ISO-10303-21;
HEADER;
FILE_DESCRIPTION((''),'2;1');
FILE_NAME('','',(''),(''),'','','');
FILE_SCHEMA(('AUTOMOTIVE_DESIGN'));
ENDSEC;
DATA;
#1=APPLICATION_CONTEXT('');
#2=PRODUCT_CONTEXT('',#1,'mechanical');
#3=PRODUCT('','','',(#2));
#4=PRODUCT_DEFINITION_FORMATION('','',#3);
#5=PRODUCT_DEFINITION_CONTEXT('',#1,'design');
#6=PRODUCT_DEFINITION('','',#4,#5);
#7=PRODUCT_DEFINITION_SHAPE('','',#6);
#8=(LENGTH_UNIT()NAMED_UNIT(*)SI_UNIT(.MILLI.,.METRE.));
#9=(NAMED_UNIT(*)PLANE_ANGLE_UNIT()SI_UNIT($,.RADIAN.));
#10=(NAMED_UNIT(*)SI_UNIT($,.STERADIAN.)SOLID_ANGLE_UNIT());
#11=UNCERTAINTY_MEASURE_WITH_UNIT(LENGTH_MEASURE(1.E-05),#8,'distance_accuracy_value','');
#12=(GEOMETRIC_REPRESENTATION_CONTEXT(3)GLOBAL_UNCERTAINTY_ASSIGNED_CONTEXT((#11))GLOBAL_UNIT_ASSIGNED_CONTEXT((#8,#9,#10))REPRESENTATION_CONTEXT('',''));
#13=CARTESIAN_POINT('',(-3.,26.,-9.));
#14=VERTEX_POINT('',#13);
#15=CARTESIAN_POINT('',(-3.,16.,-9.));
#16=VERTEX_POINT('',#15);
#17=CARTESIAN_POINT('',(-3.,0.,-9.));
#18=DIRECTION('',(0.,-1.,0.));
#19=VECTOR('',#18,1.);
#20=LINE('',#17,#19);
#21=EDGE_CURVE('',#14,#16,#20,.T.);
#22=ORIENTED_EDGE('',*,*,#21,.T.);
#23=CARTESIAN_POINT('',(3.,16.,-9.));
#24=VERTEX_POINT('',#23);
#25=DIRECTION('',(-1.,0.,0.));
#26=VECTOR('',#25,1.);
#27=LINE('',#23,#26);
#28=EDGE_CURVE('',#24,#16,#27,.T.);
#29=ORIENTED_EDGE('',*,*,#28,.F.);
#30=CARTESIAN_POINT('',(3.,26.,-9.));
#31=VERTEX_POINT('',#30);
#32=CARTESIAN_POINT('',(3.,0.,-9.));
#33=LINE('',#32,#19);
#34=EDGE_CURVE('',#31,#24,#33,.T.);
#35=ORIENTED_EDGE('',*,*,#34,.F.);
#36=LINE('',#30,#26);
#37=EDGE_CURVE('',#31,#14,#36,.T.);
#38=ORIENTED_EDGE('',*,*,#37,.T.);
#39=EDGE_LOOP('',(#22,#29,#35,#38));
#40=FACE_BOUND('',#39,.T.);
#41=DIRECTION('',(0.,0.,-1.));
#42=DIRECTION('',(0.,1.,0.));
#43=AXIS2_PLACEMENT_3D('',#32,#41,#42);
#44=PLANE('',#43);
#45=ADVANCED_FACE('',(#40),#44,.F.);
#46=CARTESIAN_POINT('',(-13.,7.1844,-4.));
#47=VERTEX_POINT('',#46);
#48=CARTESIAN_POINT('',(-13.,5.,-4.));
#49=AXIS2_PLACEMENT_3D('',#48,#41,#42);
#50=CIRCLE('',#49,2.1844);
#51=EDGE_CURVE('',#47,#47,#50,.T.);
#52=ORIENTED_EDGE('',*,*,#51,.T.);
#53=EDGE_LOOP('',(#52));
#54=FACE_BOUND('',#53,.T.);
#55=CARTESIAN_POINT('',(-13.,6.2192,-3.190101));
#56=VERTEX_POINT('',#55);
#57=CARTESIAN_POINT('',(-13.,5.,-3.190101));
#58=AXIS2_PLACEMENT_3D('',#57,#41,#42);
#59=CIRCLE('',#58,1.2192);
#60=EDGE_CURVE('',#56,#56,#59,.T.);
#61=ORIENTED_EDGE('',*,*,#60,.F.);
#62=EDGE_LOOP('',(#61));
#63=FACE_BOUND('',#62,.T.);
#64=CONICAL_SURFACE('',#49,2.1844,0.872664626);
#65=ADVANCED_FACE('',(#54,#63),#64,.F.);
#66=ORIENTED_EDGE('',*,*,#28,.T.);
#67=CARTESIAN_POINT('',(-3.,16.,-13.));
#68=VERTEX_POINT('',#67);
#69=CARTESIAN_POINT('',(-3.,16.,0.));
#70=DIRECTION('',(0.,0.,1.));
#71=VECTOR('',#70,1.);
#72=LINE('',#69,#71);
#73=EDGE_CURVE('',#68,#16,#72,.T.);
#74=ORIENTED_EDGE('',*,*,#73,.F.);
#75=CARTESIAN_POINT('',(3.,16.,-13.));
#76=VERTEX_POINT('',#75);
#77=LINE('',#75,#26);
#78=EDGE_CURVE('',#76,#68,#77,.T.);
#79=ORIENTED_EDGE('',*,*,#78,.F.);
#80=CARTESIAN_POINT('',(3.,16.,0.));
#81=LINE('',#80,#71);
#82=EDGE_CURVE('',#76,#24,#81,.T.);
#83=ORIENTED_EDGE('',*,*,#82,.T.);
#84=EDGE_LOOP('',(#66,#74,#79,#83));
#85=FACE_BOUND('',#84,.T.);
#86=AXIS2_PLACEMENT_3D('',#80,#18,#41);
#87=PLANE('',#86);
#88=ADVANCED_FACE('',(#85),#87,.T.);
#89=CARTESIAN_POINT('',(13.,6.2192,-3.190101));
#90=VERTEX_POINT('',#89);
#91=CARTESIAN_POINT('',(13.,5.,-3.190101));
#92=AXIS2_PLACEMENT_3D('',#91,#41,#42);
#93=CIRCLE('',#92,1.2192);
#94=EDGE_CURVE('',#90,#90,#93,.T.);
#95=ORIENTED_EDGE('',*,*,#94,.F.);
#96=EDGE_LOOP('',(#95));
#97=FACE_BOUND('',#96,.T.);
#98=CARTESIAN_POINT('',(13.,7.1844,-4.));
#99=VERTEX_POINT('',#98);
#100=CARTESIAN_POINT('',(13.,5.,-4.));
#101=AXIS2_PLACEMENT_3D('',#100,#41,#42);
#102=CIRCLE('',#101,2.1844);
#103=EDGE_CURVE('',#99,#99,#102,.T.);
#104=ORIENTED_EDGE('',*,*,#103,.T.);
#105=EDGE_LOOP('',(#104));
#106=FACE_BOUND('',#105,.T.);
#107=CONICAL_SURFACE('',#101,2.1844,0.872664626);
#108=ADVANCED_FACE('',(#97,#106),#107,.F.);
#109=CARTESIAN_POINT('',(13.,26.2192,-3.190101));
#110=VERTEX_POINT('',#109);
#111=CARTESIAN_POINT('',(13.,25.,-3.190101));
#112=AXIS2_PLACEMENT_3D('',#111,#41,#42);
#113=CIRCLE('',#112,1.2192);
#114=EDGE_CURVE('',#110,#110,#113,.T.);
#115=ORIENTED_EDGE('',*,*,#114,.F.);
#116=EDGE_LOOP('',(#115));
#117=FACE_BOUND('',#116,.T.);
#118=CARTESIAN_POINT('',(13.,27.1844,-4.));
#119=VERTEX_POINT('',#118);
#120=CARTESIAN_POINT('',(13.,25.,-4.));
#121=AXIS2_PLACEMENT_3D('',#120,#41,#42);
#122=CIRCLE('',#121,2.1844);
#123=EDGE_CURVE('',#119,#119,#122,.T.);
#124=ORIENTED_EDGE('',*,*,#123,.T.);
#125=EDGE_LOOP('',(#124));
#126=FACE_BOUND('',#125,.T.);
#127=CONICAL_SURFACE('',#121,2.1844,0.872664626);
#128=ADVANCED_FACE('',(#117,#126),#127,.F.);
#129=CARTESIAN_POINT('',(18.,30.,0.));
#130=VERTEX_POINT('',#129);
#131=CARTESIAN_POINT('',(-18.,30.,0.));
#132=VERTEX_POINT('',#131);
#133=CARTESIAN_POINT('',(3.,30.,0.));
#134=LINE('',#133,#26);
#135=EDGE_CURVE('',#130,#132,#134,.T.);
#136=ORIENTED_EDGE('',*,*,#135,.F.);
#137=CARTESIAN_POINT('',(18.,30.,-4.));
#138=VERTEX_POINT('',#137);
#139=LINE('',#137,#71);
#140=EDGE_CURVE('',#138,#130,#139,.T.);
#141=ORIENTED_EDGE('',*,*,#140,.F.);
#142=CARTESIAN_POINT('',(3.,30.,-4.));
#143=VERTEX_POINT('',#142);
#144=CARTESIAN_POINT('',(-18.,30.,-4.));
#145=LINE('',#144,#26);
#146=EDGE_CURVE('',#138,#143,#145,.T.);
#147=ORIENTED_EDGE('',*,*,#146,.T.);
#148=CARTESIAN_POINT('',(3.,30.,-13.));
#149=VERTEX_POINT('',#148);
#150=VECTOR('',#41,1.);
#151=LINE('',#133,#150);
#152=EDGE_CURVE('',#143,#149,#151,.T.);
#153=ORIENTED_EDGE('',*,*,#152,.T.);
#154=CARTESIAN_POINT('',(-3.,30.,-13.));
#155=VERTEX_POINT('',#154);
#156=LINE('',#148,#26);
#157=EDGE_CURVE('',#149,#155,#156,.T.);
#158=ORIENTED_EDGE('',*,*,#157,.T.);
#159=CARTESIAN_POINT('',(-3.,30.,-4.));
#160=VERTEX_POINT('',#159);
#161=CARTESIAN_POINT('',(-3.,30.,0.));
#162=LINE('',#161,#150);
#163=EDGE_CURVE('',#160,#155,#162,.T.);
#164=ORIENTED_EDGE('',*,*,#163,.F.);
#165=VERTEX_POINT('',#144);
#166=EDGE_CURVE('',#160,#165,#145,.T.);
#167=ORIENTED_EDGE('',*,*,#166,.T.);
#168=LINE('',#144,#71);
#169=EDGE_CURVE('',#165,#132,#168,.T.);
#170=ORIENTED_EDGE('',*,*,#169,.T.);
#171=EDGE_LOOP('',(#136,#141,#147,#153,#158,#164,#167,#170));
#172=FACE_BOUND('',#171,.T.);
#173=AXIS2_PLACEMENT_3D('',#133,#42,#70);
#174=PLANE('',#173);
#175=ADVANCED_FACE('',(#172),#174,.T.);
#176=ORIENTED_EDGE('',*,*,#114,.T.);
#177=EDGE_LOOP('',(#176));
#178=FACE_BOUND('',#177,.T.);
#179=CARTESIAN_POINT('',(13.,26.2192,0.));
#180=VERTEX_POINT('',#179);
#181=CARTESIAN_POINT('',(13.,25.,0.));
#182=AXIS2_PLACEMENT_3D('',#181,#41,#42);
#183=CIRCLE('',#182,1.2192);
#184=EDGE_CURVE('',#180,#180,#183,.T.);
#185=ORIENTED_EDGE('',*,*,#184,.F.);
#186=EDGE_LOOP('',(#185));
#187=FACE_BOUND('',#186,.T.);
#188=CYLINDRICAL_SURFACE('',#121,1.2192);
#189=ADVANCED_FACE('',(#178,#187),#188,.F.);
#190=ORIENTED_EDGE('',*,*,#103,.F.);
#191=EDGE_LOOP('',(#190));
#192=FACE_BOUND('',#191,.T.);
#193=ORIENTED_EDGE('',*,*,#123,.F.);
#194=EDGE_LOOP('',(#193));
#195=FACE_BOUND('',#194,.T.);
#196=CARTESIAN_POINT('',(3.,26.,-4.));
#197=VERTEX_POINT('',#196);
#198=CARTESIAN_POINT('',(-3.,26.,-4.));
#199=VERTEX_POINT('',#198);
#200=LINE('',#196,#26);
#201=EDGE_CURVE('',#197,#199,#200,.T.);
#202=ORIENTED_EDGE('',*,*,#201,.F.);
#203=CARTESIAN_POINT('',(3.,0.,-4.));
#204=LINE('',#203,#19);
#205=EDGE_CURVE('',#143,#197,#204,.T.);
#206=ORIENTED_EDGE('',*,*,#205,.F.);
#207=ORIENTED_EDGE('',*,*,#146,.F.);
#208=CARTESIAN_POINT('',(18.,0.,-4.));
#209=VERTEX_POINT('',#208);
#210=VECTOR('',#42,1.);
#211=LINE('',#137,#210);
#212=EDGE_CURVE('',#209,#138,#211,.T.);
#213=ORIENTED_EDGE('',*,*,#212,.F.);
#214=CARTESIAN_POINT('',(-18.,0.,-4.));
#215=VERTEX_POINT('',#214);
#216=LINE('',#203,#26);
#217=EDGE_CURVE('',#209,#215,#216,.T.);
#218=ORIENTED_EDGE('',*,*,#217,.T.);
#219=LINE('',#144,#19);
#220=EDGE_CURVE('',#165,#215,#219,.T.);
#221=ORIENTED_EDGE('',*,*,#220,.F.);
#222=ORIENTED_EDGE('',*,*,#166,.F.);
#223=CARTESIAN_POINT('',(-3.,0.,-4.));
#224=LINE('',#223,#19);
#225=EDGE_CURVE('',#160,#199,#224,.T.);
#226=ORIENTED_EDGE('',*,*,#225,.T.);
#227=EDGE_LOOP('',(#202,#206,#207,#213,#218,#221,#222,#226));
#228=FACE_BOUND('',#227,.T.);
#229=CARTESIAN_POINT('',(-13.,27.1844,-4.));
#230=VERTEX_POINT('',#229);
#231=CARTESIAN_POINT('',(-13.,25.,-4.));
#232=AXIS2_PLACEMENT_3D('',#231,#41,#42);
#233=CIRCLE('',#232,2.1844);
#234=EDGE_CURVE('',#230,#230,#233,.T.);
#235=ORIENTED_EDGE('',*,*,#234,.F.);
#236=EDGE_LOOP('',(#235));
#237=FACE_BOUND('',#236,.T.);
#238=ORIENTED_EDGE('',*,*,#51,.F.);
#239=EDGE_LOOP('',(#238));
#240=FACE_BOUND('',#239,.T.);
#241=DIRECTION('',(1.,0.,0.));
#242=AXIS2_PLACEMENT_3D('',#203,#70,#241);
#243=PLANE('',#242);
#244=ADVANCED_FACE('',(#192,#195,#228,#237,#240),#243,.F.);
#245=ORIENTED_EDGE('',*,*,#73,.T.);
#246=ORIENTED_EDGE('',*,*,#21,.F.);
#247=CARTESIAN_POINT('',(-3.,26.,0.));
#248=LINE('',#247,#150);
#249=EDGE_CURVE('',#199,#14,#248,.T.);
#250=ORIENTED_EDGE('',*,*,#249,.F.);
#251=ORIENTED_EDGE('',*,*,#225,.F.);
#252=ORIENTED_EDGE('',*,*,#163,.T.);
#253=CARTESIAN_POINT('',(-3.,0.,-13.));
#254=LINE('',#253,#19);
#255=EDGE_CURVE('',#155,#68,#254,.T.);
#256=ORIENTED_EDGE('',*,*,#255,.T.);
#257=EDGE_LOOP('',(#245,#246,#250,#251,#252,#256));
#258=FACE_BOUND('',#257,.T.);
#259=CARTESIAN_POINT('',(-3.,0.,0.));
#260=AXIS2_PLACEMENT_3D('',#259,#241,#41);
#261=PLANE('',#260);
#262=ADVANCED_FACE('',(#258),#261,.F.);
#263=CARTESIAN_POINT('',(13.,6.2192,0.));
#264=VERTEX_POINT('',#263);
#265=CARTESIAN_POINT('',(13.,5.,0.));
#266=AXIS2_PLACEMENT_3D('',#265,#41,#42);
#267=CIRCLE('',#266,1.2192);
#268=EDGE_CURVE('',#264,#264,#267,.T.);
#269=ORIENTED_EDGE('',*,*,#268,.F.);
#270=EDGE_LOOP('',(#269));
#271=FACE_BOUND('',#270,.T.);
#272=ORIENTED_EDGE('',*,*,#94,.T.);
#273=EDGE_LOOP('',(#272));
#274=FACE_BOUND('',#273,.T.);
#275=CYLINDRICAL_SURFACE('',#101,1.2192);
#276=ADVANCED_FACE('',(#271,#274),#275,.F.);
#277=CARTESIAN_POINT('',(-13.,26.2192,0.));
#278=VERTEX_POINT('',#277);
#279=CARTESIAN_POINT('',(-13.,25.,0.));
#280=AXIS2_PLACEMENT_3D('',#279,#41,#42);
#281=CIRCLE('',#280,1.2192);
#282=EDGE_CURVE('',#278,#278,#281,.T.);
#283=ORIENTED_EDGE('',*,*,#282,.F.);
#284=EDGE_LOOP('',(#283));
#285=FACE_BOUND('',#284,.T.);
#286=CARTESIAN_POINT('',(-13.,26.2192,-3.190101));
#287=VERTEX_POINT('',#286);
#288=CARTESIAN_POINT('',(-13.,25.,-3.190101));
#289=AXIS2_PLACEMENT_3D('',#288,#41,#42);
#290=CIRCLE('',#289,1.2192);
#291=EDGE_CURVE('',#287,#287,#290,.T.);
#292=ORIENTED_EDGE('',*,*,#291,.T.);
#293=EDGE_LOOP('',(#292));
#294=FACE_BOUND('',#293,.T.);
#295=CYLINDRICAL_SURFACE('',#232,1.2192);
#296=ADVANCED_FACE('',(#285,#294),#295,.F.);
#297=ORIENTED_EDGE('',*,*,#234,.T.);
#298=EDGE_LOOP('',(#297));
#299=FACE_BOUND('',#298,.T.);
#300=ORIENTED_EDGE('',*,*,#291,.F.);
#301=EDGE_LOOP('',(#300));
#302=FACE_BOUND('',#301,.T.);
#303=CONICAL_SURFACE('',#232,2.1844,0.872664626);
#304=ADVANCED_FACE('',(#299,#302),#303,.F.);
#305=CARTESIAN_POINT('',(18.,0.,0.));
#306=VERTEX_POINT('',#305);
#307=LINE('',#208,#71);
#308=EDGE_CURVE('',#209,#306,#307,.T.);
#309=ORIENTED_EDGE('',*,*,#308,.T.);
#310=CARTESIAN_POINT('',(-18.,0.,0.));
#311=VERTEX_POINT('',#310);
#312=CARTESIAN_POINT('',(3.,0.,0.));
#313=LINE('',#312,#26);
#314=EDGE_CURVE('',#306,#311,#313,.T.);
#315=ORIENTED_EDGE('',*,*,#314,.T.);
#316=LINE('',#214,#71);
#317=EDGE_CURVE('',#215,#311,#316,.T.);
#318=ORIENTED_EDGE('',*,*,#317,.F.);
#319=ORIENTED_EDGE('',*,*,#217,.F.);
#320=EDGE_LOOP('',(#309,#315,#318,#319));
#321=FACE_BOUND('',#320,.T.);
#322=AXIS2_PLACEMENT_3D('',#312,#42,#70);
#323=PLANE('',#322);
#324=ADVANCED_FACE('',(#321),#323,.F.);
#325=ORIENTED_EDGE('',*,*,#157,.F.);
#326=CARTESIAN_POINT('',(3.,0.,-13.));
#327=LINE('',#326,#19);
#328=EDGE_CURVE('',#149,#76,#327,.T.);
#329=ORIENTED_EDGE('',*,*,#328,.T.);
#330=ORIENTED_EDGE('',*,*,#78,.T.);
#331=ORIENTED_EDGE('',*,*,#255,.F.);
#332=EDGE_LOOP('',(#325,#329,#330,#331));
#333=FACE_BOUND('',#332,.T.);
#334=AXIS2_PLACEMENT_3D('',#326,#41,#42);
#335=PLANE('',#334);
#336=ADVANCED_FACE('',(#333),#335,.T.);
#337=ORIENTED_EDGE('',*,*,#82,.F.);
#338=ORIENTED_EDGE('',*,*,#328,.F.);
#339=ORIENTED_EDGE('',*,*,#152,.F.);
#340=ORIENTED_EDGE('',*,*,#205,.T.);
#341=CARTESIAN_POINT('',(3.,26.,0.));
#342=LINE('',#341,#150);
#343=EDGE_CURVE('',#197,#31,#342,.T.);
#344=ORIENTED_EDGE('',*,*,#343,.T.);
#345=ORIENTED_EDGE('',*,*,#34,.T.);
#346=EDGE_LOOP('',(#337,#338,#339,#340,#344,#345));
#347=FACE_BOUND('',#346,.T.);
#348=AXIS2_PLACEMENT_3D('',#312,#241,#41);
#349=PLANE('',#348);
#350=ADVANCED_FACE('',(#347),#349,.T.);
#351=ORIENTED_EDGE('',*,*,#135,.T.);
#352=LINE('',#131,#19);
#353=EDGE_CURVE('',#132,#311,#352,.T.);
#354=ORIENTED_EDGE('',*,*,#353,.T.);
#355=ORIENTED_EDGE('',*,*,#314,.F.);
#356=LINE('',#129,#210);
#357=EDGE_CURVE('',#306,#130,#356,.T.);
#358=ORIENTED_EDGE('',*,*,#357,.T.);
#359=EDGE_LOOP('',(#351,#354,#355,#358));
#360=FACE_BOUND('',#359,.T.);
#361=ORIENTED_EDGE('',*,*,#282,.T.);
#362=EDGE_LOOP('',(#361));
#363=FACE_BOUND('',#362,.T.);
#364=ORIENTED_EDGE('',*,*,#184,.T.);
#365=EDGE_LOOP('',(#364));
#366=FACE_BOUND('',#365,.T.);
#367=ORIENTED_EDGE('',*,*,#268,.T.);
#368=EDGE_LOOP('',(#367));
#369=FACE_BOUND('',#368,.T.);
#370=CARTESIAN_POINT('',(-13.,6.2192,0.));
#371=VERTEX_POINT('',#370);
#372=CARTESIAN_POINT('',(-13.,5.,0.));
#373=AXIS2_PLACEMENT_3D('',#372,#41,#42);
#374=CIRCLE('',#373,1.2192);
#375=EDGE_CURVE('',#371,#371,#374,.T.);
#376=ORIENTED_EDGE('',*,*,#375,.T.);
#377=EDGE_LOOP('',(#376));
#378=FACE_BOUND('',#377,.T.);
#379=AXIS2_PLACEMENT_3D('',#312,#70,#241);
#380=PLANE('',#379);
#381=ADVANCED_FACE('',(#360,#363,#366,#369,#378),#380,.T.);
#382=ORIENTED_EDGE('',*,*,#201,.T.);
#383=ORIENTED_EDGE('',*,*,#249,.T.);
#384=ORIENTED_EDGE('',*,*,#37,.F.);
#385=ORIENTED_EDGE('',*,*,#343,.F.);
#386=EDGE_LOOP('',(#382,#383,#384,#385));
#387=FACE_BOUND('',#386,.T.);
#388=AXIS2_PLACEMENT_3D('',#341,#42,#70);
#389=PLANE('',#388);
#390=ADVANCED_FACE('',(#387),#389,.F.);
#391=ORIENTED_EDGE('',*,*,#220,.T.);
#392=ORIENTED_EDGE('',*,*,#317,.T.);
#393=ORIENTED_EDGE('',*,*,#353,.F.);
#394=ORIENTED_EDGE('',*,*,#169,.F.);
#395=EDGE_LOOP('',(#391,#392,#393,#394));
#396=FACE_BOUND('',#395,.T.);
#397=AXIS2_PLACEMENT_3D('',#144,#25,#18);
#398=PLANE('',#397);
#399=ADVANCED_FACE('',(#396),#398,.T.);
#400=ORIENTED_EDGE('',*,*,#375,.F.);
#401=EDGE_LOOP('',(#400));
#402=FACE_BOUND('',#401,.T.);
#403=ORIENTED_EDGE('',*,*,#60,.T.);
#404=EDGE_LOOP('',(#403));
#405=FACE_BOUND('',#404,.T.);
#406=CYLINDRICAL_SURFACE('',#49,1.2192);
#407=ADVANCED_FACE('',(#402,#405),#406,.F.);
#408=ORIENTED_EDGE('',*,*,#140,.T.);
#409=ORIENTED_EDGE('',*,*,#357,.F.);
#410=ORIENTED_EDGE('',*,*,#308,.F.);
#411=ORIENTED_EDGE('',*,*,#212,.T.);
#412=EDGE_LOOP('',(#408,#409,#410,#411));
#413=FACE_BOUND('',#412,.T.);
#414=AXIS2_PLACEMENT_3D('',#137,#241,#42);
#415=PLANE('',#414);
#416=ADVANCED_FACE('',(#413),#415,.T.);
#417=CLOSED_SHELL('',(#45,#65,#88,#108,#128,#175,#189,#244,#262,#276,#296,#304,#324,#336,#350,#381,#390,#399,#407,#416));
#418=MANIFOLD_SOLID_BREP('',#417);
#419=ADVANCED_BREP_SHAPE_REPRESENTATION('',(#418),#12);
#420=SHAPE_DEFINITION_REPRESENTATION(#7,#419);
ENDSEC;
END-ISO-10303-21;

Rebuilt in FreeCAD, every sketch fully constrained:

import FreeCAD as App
import Part
import Sketcher

V = App.Vector


def add_polygon(sketch, points):
    """Adds a closed chain of lines whose ends are joined by coincident constraints."""
    first, n = sketch.GeometryCount, len(points)
    for a, b in zip(points, points[1:] + points[:1]):
        sketch.addGeometry(Part.LineSegment(App.Vector(*a, 0), App.Vector(*b, 0)), False)
    for i in range(n):
        sketch.addConstraint(Sketcher.Constraint("Coincident", first + i, 2, first + (i + 1) % n, 1))

doc = App.newDocument("Part")
params = doc.addObject("Spreadsheet::Sheet", "Params")
for row, (alias, value) in enumerate([
    ("sketch1_width", "10 mm"),
    ("sketch1_width2", "14 mm"),
    ("sketch1_width3", "30 mm"),
    ("sketch1_height", "5 mm"),
    ("sketch1_height2", "4 mm"),
    ("pad1_length", "6 mm"),
    ("sketch2_width", "36 mm"),
    ("sketch2_height", "30 mm"),
    ("pad2_length", "4 mm"),
    ("hole_diameter", "2.4384 mm"),
    ("hole_csink_diameter", "4.3688 mm"),
], start=1):
    params.set(f"A{row}", alias)
    params.set(f"B{row}", "=" + value)
    params.setAlias(f"B{row}", alias)

body = doc.addObject("PartDesign::Body", "Body")

sketch1 = body.newObject("Sketcher::SketchObject", "Sketch")
sketch1.AttachmentSupport = (doc.getObject("YZ_Plane"), [""])
sketch1.MapMode = "FlatFace"
add_polygon(sketch1, [(26, -4), (26, -9), (16, -9), (16, -13), (30, -13), (30, 0), (0, 0), (0, -4)])
sketch1.addConstraint([
    Sketcher.Constraint("Vertical", 0),
    Sketcher.Constraint("Horizontal", 1),
    Sketcher.Constraint("Vertical", 2),
    Sketcher.Constraint("Horizontal", 3),
    Sketcher.Constraint("Vertical", 4),
    Sketcher.Constraint("Horizontal", 5),
    Sketcher.Constraint("Vertical", 6),
    Sketcher.Constraint("Horizontal", 7),
    Sketcher.Constraint("Coincident", 5, 2, -1, 1),
    Sketcher.Constraint("Equal", 2, 6),
    Sketcher.Constraint("DistanceX", 1, 2, 1, 1, 10.0),
    Sketcher.Constraint("DistanceX", 3, 1, 3, 2, 14.0),
    Sketcher.Constraint("DistanceX", 5, 2, 5, 1, 30.0),
    Sketcher.Constraint("DistanceY", 0, 2, 0, 1, 5.0),
    Sketcher.Constraint("DistanceY", 2, 2, 2, 1, 4.0),
])
sketch1.setExpression("Constraints[18]", "Params.sketch1_width")
sketch1.setExpression("Constraints[19]", "Params.sketch1_width2")
sketch1.setExpression("Constraints[20]", "Params.sketch1_width3")
sketch1.setExpression("Constraints[21]", "Params.sketch1_height")
sketch1.setExpression("Constraints[22]", "Params.sketch1_height2")
pad1 = body.newObject("PartDesign::Pad", "Pad")
pad1.Profile = sketch1
pad1.setExpression("Length", "Params.pad1_length")
pad1.Midplane = True

sketch2 = body.newObject("Sketcher::SketchObject", "Sketch001")
sketch2.AttachmentSupport = (doc.getObject("XY_Plane"), [""])
sketch2.MapMode = "FlatFace"
add_polygon(sketch2, [(-18, 30), (-18, 0), (18, 0), (18, 30)])
sketch2.addConstraint([
    Sketcher.Constraint("Vertical", 0),
    Sketcher.Constraint("Horizontal", 1),
    Sketcher.Constraint("Vertical", 2),
    Sketcher.Constraint("Horizontal", 3),
    Sketcher.Constraint("Symmetric", 0, 2, 1, 2, -1, 1),
    Sketcher.Constraint("DistanceX", 1, 1, 1, 2, 36.0),
    Sketcher.Constraint("DistanceY", 0, 2, 0, 1, 30.0),
])
sketch2.setExpression("Constraints[9]", "Params.sketch2_width")
sketch2.setExpression("Constraints[10]", "Params.sketch2_height")
pad2 = body.newObject("PartDesign::Pad", "Pad001")
pad2.Profile = sketch2
pad2.setExpression("Length", "Params.pad2_length")
pad2.Reversed = True

sketch3 = body.newObject("Sketcher::SketchObject", "Sketch002")
sketch3.AttachmentSupport = (doc.getObject("XY_Plane"), [""])
sketch3.MapMode = "FlatFace"
sketch3.AttachmentOffset = App.Placement(V(0, 0, -4), App.Rotation())
sketch3.addGeometry([
    Part.Circle(V(13, 25, 0), V(0, 0, 1), 1.2),
    Part.Circle(V(13, 5, 0), V(0, 0, 1), 1.2),
    Part.Circle(V(-13, 5, 0), V(0, 0, 1), 1.2),
    Part.Circle(V(-13, 25, 0), V(0, 0, 1), 1.2),
], False)
sketch3.addConstraint([
    Sketcher.Constraint("Equal", 0, 1),
    Sketcher.Constraint("Equal", 1, 2),
    Sketcher.Constraint("Equal", 2, 3),
    Sketcher.Constraint("Symmetric", 1, 3, 2, 3, -2),
    Sketcher.Constraint("Symmetric", 0, 3, 3, 3, -2),
    Sketcher.Constraint("Vertical", 0, 3, 1, 3),
    Sketcher.Constraint("DistanceX", -1, 1, 0, 3, 13.0),
    Sketcher.Constraint("DistanceY", -1, 1, 0, 3, 25.0),
    Sketcher.Constraint("DistanceY", -1, 1, 1, 3, 5.0),
    Sketcher.Constraint("Diameter", 0, 2.4384),
])
doc.recompute()
hole = body.newObject("PartDesign::Hole", "Hole")
hole.Profile = sketch3
hole.ThreadType = "None"
hole.setExpression("Diameter", "Params.hole_diameter")
hole.DepthType = "ThroughAll"
hole.HoleCutType = "Countersink"
hole.setExpression("HoleCutDiameter", "Params.hole_csink_diameter")
hole.HoleCutCountersinkAngle = 100
hole.Reversed = True

doc.recompute()
